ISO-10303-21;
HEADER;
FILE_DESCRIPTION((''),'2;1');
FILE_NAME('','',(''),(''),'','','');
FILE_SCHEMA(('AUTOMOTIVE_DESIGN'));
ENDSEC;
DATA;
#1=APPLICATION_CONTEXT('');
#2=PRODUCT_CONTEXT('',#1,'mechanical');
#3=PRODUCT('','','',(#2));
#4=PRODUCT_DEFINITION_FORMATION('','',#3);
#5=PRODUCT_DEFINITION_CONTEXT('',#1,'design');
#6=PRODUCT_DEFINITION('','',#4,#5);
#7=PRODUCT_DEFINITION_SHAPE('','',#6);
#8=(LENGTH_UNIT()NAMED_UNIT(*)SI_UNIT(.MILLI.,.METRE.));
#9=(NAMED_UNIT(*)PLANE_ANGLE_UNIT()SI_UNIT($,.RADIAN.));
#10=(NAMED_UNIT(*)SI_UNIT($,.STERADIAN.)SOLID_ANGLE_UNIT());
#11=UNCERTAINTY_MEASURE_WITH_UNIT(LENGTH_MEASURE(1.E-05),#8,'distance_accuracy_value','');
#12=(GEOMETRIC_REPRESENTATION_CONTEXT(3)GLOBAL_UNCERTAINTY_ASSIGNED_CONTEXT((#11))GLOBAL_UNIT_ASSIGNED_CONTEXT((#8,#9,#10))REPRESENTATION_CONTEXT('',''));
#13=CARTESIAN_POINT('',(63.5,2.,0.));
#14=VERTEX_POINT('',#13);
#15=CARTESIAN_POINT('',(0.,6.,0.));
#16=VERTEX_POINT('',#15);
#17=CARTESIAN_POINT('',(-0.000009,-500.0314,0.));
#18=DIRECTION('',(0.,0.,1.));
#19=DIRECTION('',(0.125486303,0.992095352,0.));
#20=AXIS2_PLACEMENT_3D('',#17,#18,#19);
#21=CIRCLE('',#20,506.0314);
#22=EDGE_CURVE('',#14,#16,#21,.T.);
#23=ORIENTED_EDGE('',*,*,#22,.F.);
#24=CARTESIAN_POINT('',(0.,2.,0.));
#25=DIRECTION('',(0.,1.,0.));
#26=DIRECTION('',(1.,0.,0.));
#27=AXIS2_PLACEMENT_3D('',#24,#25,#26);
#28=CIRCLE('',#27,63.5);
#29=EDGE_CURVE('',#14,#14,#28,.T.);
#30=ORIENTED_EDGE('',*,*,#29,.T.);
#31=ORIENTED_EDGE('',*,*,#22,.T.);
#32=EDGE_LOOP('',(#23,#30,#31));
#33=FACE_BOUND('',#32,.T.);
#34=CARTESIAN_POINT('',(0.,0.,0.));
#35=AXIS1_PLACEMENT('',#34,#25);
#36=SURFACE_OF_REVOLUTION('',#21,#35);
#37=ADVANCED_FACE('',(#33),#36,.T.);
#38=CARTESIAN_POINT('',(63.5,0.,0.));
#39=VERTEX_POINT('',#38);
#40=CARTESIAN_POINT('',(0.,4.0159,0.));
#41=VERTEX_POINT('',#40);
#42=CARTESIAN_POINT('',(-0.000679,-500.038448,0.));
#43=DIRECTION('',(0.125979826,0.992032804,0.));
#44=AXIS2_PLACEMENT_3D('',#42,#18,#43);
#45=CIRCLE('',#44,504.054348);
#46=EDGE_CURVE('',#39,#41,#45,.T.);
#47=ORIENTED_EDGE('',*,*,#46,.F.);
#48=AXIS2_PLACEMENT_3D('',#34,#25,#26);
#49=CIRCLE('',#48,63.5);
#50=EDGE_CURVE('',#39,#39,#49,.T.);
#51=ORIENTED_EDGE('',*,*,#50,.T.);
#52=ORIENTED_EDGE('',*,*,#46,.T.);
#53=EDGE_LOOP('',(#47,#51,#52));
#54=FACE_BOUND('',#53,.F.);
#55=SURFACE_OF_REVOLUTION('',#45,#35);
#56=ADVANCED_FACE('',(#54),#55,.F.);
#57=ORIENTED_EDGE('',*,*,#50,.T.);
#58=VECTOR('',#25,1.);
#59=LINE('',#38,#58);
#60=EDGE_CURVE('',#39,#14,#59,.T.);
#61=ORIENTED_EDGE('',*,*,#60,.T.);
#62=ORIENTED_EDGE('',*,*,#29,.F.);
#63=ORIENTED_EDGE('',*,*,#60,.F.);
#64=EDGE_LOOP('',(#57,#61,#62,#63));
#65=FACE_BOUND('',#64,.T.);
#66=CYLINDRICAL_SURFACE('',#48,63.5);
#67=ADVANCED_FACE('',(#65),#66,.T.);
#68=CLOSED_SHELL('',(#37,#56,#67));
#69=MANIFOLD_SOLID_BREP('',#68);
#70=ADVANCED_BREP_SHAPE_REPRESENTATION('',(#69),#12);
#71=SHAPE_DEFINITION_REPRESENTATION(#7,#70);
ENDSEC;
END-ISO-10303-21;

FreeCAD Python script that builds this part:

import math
import FreeCAD as App
import Part
import Sketcher
from FreeCAD import Vector
Q = App.Units.Quantity

doc = App.newDocument("Part")
body = doc.addObject("PartDesign::Body", "Body")

# Sketch on XY plane
sketch1 = body.newObject("Sketcher::SketchObject", "Sketch")
sketch1.AttachmentSupport = (doc.getObject("XY_Plane"), [""])
sketch1.MapMode = "FlatFace"
sketch1.addGeometry([
    Part.ArcOfCircle(Part.Circle(Vector(0, -500, 0), Vector(0, 0, 1), 504.1), math.radians(82.76), math.radians(90)),
    Part.LineSegment(Vector(63.5, 0, 0), Vector(63.5, 2, 0)),
    Part.ArcOfCircle(Part.Circle(Vector(0, -500, 0), Vector(0, 0, 1), 506), math.radians(82.79), math.radians(90)),
    Part.LineSegment(Vector(0, 6, 0), Vector(0, 4, 0)),
], False)
sketch1.addConstraint([
    Sketcher.Constraint("Coincident", 0, 1, 1, 1),
    Sketcher.Constraint("Coincident", 1, 2, 2, 1),
    Sketcher.Constraint("Coincident", 2, 2, 3, 1),
    Sketcher.Constraint("Coincident", 3, 2, 0, 2),
    Sketcher.Constraint("Vertical", 1),
    Sketcher.Constraint("Vertical", 3),
    Sketcher.Constraint("PointOnObject", 2, 3, -2),
    Sketcher.Constraint("PointOnObject", 0, 1, -1),
    Sketcher.Constraint("PointOnObject", 3, 2, -2),
    Sketcher.Constraint("DistanceY", 1, 1, 1, 2, Q("2 mm")),
    Sketcher.Constraint("DistanceY", -1, 1, 2, 2, Q("6 mm")),
    Sketcher.Constraint("DistanceX", -1, 1, 1, 2, Q("63.5 mm")),
    Sketcher.Constraint("Radius", 0, Q("504.0543 mm")),
    Sketcher.Constraint("DistanceY", 3, 2, 3, 1, Q("1.984 mm")),
])
revolution = body.newObject("PartDesign::Revolution", "Revolution")
revolution.Profile = sketch1
revolution.ReferenceAxis = (sketch1, ["V_Axis"])
revolution.Angle = 360

doc.recompute()
